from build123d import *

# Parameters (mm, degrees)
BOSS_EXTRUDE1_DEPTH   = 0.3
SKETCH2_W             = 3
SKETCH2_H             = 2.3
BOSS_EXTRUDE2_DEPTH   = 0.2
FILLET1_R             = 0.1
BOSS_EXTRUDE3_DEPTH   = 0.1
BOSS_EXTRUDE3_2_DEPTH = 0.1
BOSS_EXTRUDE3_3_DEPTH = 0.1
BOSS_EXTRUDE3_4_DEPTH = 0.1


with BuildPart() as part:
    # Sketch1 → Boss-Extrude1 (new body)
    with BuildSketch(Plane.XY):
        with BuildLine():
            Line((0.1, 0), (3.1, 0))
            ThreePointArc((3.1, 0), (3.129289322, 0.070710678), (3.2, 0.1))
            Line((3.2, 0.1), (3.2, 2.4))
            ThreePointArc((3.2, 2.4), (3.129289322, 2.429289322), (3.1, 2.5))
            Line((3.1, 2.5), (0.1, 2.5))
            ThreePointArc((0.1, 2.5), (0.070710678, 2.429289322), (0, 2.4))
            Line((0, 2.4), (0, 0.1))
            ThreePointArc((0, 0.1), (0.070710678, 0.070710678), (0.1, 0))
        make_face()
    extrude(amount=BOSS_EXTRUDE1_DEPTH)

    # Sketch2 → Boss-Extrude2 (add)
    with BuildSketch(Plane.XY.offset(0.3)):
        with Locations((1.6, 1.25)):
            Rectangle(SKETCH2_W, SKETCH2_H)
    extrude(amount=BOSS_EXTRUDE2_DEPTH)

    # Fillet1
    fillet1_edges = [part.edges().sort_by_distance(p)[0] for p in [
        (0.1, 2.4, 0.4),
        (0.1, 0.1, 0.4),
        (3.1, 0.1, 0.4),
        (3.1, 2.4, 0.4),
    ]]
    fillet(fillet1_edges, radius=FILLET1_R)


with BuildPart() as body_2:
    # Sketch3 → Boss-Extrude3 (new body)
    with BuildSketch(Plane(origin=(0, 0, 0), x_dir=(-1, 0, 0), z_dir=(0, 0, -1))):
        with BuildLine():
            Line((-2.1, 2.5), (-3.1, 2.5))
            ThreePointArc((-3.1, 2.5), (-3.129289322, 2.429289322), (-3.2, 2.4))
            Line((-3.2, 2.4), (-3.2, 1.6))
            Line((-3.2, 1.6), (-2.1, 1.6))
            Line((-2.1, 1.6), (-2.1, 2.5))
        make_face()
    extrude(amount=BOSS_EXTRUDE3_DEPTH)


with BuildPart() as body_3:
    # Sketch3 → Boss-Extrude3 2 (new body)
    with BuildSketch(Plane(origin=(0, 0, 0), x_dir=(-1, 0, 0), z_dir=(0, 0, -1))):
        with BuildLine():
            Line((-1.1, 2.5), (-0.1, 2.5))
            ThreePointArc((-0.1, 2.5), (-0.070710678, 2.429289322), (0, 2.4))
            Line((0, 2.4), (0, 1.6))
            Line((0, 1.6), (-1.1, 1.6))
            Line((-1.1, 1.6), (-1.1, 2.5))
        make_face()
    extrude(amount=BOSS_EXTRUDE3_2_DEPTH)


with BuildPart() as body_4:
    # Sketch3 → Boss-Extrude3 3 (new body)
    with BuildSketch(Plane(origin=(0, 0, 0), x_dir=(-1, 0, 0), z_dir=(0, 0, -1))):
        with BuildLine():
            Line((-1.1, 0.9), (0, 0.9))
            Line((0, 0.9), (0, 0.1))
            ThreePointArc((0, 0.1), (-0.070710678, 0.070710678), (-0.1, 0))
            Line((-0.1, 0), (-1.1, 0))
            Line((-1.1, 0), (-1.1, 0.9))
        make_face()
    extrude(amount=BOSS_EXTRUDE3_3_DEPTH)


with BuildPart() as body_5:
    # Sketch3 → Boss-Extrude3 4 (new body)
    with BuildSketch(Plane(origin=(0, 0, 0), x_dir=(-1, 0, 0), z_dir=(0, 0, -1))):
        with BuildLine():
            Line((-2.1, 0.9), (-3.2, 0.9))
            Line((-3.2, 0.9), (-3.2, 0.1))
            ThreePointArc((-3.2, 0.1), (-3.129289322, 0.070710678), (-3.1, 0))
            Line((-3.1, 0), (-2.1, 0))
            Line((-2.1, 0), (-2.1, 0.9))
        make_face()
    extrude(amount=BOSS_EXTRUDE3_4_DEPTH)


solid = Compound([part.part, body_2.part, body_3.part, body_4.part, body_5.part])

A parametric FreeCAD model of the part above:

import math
import FreeCAD as App
import Part
import Sketcher


def edges_at(feature, points):
    """Names of the edges that pass closest to the given points."""
    edges = feature.Shape.Edges
    near = lambda p: min(range(len(edges)), key=lambda i: edges[i].distToShape(Part.Vertex(*p))[0])
    return sorted({f"Edge{near(p) + 1}" for p in points})


def add_polygon(sketch, points):
    """Adds a closed chain of lines whose ends are joined by coincident constraints."""
    first, n = sketch.GeometryCount, len(points)
    for a, b in zip(points, points[1:] + points[:1]):
        sketch.addGeometry(Part.LineSegment(App.Vector(*a, 0), App.Vector(*b, 0)), False)
    for i in range(n):
        sketch.addConstraint(Sketcher.Constraint("Coincident", first + i, 2, first + (i + 1) % n, 1))

doc = App.newDocument("Part")
body = doc.addObject("PartDesign::Body", "Body")

sketch1 = doc.addObject("Sketcher::SketchObject", "Sketch")
body.addObject(sketch1)
sketch1.AttachmentSupport = (doc.XY_Plane, [""])
sketch1.MapMode = "FlatFace"
sketch1.addGeometry([
    Part.LineSegment(App.Vector(0.1, 0, 0), App.Vector(3.1, 0, 0)),
    Part.ArcOfCircle(Part.Circle(App.Vector(3.2, 0, 0), App.Vector(0, 0, 1), 0.1), math.radians(90), math.radians(180)),
    Part.LineSegment(App.Vector(3.2, 0.1, 0), App.Vector(3.2, 2.4, 0)),
    Part.ArcOfCircle(Part.Circle(App.Vector(3.2, 2.5, 0), App.Vector(0, 0, 1), 0.1), math.radians(180), math.radians(270)),
    Part.LineSegment(App.Vector(3.1, 2.5, 0), App.Vector(0.1, 2.5, 0)),
    Part.ArcOfCircle(Part.Circle(App.Vector(0, 2.5, 0), App.Vector(0, 0, 1), 0.1), math.radians(-90), math.radians(0)),
    Part.LineSegment(App.Vector(0, 2.4, 0), App.Vector(0, 0.1, 0)),
    Part.ArcOfCircle(Part.Circle(App.Vector(0, 0, 0), App.Vector(0, 0, 1), 0.1), math.radians(0), math.radians(90)),
], False)
sketch1.addConstraint([
    Sketcher.Constraint("Coincident", 0, 2, 1, 2),
    Sketcher.Constraint("Coincident", 1, 1, 2, 1),
    Sketcher.Constraint("Coincident", 2, 2, 3, 2),
    Sketcher.Constraint("Coincident", 3, 1, 4, 1),
    Sketcher.Constraint("Coincident", 4, 2, 5, 2),
    Sketcher.Constraint("Coincident", 5, 1, 6, 1),
    Sketcher.Constraint("Coincident", 6, 2, 7, 2),
    Sketcher.Constraint("Coincident", 7, 1, 0, 1),
    Sketcher.Constraint("Horizontal", 0),
    Sketcher.Constraint("Vertical", 2),
    Sketcher.Constraint("Horizontal", 4),
    Sketcher.Constraint("Vertical", 6),
    Sketcher.Constraint("Coincident", 7, 3, -1, 1),
    Sketcher.Constraint("Equal", 1, 3),
    Sketcher.Constraint("Equal", 3, 5),
    Sketcher.Constraint("Equal", 5, 7),
    Sketcher.Constraint("PointOnObject", 1, 3, -1),
    Sketcher.Constraint("PointOnObject", 5, 3, -2),
    Sketcher.Constraint("PointOnObject", 0, 2, -1),
    Sketcher.Constraint("PointOnObject", 5, 1, -2),
    Sketcher.Constraint("Horizontal", 3, 3, 5, 3),
    Sketcher.Constraint("Horizontal", 5, 3, 3, 1),
    Sketcher.Constraint("Vertical", 1, 3, 3, 3),
    Sketcher.Constraint("Vertical", 3, 3, 1, 1),
    Sketcher.Constraint("Radius", 1, 0.1),
    Sketcher.Constraint("DistanceX", 0, 1, 0, 2, 3.0),
    Sketcher.Constraint("DistanceY", 2, 1, 2, 2, 2.3),
])
pad1 = doc.addObject("PartDesign::Pad", "Pad")
body.addObject(pad1)
pad1.Profile = sketch1
pad1.Length = 0.3

sketch2 = doc.addObject("Sketcher::SketchObject", "Sketch001")
body.addObject(sketch2)
sketch2.AttachmentSupport = (doc.XY_Plane, [""])
sketch2.MapMode = "FlatFace"
sketch2.AttachmentOffset = App.Placement(App.Vector(0, 0, 0.3), App.Rotation())
add_polygon(sketch2, [(0.1, 2.4), (0.1, 0.1), (3.1, 0.1), (3.1, 2.4)])
sketch2.addConstraint([
    Sketcher.Constraint("Vertical", 0),
    Sketcher.Constraint("Horizontal", 1),
    Sketcher.Constraint("Vertical", 2),
    Sketcher.Constraint("Horizontal", 3),
    Sketcher.Constraint("DistanceX", 1, 1, 1, 2, 3.0),
    Sketcher.Constraint("DistanceY", 0, 2, 0, 1, 2.3),
    Sketcher.Constraint("DistanceX", -1, 1, 0, 2, 0.1),
    Sketcher.Constraint("DistanceY", -1, 1, 0, 2, 0.1),
])
pad2 = doc.addObject("PartDesign::Pad", "Pad001")
body.addObject(pad2)
pad2.Profile = sketch2
pad2.Length = 0.2
doc.recompute()

fillet = doc.addObject("PartDesign::Fillet", "Fillet")
body.addObject(fillet)
fillet.Base = (pad2, edges_at(pad2, [
    (0.1, 2.4, 0.4),
    (0.1, 0.1, 0.4),
    (3.1, 0.1, 0.4),
    (3.1, 2.4, 0.4),
]))
fillet.Radius = 0.1
body2 = doc.addObject("PartDesign::Body", "Body001")

sketch3 = doc.addObject("Sketcher::SketchObject", "Sketch002")
body2.addObject(sketch3)
sketch3.AttachmentSupport = (doc.getObject("XY_Plane001"), [""])
sketch3.MapMode = "FlatFace"
sketch3.addGeometry([
    Part.LineSegment(App.Vector(2.1, 2.5, 0), App.Vector(3.1, 2.5, 0)),
    Part.ArcOfCircle(Part.Circle(App.Vector(3.2, 2.5, 0), App.Vector(0, 0, 1), 0.1), math.radians(180), math.radians(270)),
    Part.LineSegment(App.Vector(3.2, 2.4, 0), App.Vector(3.2, 1.6, 0)),
    Part.LineSegment(App.Vector(3.2, 1.6, 0), App.Vector(2.1, 1.6, 0)),
    Part.LineSegment(App.Vector(2.1, 1.6, 0), App.Vector(2.1, 2.5, 0)),
], False)
sketch3.addConstraint([
    Sketcher.Constraint("Coincident", 0, 2, 1, 1),
    Sketcher.Constraint("Coincident", 1, 2, 2, 1),
    Sketcher.Constraint("Coincident", 2, 2, 3, 1),
    Sketcher.Constraint("Coincident", 3, 2, 4, 1),
    Sketcher.Constraint("Coincident", 4, 2, 0, 1),
    Sketcher.Constraint("Horizontal", 0),
    Sketcher.Constraint("Vertical", 2),
    Sketcher.Constraint("Horizontal", 3),
    Sketcher.Constraint("Vertical", 4),
    Sketcher.Constraint("Horizontal", 1, 3, 0, 2),
    Sketcher.Constraint("Radius", 1, 0.1),
    Sketcher.Constraint("DistanceX", 0, 1, 0, 2, 1.0),
    Sketcher.Constraint("DistanceX", 3, 2, 3, 1, 1.1),
    Sketcher.Constraint("DistanceY", 2, 2, 2, 1, 0.8),
    Sketcher.Constraint("DistanceX", -1, 1, 1, 3, 3.2),
    Sketcher.Constraint("DistanceY", -1, 1, 1, 3, 2.5),
])
pad3 = doc.addObject("PartDesign::Pad", "Pad002")
body2.addObject(pad3)
pad3.Profile = sketch3
pad3.Length = 0.1
pad3.Reversed = True
body3 = doc.addObject("PartDesign::Body", "Body002")

sketch4 = doc.addObject("Sketcher::SketchObject", "Sketch003")
body3.addObject(sketch4)
sketch4.AttachmentSupport = (doc.getObject("XY_Plane002"), [""])
sketch4.MapMode = "FlatFace"
sketch4.addGeometry([
    Part.LineSegment(App.Vector(0.1, 2.5, 0), App.Vector(1.1, 2.5, 0)),
    Part.LineSegment(App.Vector(1.1, 2.5, 0), App.Vector(1.1, 1.6, 0)),
    Part.LineSegment(App.Vector(1.1, 1.6, 0), App.Vector(0, 1.6, 0)),
    Part.LineSegment(App.Vector(0, 1.6, 0), App.Vector(0, 2.4, 0)),
    Part.ArcOfCircle(Part.Circle(App.Vector(0, 2.5, 0), App.Vector(0, 0, 1), 0.1), math.radians(-90), math.radians(0)),
], False)
sketch4.addConstraint([
    Sketcher.Constraint("Coincident", 0, 2, 1, 1),
    Sketcher.Constraint("Coincident", 1, 2, 2, 1),
    Sketcher.Constraint("Coincident", 2, 2, 3, 1),
    Sketcher.Constraint("Coincident", 3, 2, 4, 1),
    Sketcher.Constraint("Coincident", 4, 2, 0, 1),
    Sketcher.Constraint("Horizontal", 0),
    Sketcher.Constraint("Vertical", 1),
    Sketcher.Constraint("Horizontal", 2),
    Sketcher.Constraint("Vertical", 3),
    Sketcher.Constraint("PointOnObject", 4, 3, -2),
    Sketcher.Constraint("PointOnObject", 2, 2, -2),
    Sketcher.Constraint("Horizontal", 4, 3, 0, 2),
    Sketcher.Constraint("Radius", 4, 0.1),
    Sketcher.Constraint("DistanceX", 0, 1, 0, 2, 1.0),
    Sketcher.Constraint("DistanceY", 1, 2, 1, 1, 0.9),
    Sketcher.Constraint("DistanceY", -1, 1, 4, 3, 2.5),
])
pad4 = doc.addObject("PartDesign::Pad", "Pad003")
body3.addObject(pad4)
pad4.Profile = sketch4
pad4.Length = 0.1
pad4.Reversed = True
body4 = doc.addObject("PartDesign::Body", "Body003")

sketch5 = doc.addObject("Sketcher::SketchObject", "Sketch004")
body4.addObject(sketch5)
sketch5.AttachmentSupport = (doc.getObject("XY_Plane003"), [""])
sketch5.MapMode = "FlatFace"
sketch5.addGeometry([
    Part.LineSegment(App.Vector(0, 0.9, 0), App.Vector(1.1, 0.9, 0)),
    Part.LineSegment(App.Vector(1.1, 0.9, 0), App.Vector(1.1, 0, 0)),
    Part.LineSegment(App.Vector(1.1, 0, 0), App.Vector(0.1, 0, 0)),
    Part.ArcOfCircle(Part.Circle(App.Vector(0, 0, 0), App.Vector(0, 0, 1), 0.1), math.radians(0), math.radians(90)),
    Part.LineSegment(App.Vector(0, 0.1, 0), App.Vector(0, 0.9, 0)),
], False)
sketch5.addConstraint([
    Sketcher.Constraint("Coincident", 0, 2, 1, 1),
    Sketcher.Constraint("Coincident", 1, 2, 2, 1),
    Sketcher.Constraint("Coincident", 2, 2, 3, 1),
    Sketcher.Constraint("Coincident", 3, 2, 4, 1),
    Sketcher.Constraint("Coincident", 4, 2, 0, 1),
    Sketcher.Constraint("Horizontal", 0),
    Sketcher.Constraint("Vertical", 1),
    Sketcher.Constraint("Horizontal", 2),
    Sketcher.Constraint("Vertical", 4),
    Sketcher.Constraint("Coincident", 3, 3, -1, 1),
    Sketcher.Constraint("PointOnObject", 1, 2, -1),
    Sketcher.Constraint("PointOnObject", 3, 2, -2),
    Sketcher.Constraint("Radius", 3, 0.1),
    Sketcher.Constraint("DistanceX", 2, 2, 2, 1, 1.0),
    Sketcher.Constraint("DistanceY", 1, 2, 1, 1, 0.9),
])
pad5 = doc.addObject("PartDesign::Pad", "Pad004")
body4.addObject(pad5)
pad5.Profile = sketch5
pad5.Length = 0.1
pad5.Reversed = True
body5 = doc.addObject("PartDesign::Body", "Body004")

sketch6 = doc.addObject("Sketcher::SketchObject", "Sketch005")
body5.addObject(sketch6)
sketch6.AttachmentSupport = (doc.getObject("XY_Plane004"), [""])
sketch6.MapMode = "FlatFace"
sketch6.addGeometry([
    Part.LineSegment(App.Vector(2.1, 0.9, 0), App.Vector(3.2, 0.9, 0)),
    Part.LineSegment(App.Vector(3.2, 0.9, 0), App.Vector(3.2, 0.1, 0)),
    Part.ArcOfCircle(Part.Circle(App.Vector(3.2, 0, 0), App.Vector(0, 0, 1), 0.1), math.radians(90), math.radians(180)),
    Part.LineSegment(App.Vector(3.1, 0, 0), App.Vector(2.1, 0, 0)),
    Part.LineSegment(App.Vector(2.1, 0, 0), App.Vector(2.1, 0.9, 0)),
], False)
sketch6.addConstraint([
    Sketcher.Constraint("Coincident", 0, 2, 1, 1),
    Sketcher.Constraint("Coincident", 1, 2, 2, 1),
    Sketcher.Constraint("Coincident", 2, 2, 3, 1),
    Sketcher.Constraint("Coincident", 3, 2, 4, 1),
    Sketcher.Constraint("Coincident", 4, 2, 0, 1),
    Sketcher.Constraint("Horizontal", 0),
    Sketcher.Constraint("Vertical", 1),
    Sketcher.Constraint("Horizontal", 3),
    Sketcher.Constraint("Vertical", 4),
    Sketcher.Constraint("PointOnObject", 2, 3, -1),
    Sketcher.Constraint("PointOnObject", 2, 2, -1),
    Sketcher.Constraint("Vertical", 2, 3, 0, 2),
    Sketcher.Constraint("Radius", 2, 0.1),
    Sketcher.Constraint("DistanceX", 3, 2, 3, 1, 1.0),
    Sketcher.Constraint("DistanceY", 1, 2, 1, 1, 0.8),
    Sketcher.Constraint("DistanceX", -1, 1, 2, 3, 3.2),
])
pad6 = doc.addObject("PartDesign::Pad", "Pad005")
body5.addObject(pad6)
pad6.Profile = sketch6
pad6.Length = 0.1
pad6.Reversed = True

doc.recompute()
